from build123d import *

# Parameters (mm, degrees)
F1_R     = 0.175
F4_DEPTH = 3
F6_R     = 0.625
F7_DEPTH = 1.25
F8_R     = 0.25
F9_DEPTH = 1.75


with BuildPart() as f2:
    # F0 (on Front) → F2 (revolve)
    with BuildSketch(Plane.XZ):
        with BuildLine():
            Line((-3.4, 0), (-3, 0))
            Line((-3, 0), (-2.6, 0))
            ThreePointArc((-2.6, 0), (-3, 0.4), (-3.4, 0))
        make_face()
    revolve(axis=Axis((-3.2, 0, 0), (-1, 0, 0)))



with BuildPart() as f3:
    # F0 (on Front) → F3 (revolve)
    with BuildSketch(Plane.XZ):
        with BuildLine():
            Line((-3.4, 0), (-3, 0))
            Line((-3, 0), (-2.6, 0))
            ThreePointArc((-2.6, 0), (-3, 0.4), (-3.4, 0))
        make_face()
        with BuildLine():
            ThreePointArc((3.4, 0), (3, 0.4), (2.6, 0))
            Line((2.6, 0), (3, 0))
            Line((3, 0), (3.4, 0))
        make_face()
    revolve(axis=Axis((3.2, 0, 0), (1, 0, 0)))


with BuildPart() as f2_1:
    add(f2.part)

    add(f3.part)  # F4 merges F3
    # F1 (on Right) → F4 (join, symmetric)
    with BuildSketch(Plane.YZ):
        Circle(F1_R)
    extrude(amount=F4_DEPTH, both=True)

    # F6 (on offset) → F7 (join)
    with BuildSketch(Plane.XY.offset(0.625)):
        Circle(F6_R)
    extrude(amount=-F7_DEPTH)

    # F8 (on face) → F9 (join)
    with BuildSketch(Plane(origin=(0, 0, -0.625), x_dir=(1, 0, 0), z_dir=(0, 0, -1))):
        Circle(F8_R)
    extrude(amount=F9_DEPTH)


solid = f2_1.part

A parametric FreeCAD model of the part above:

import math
import FreeCAD as App
import Part
import Sketcher

V = App.Vector

doc = App.newDocument("Part")
params = doc.addObject("Spreadsheet::Sheet", "Params")
for row, (alias, value) in enumerate([
    ("sketch1_radius", "0.4 mm"),
    ("revolution_angle", "360 deg"),
    ("sketch2_radius", "0.4 mm"),
    ("revolution2_angle", "360 deg"),
    ("sketch3_diameter", "0.35 mm"),
    ("pad1_length", "6 mm"),
    ("sketch4_diameter", "1.25 mm"),
    ("pad2_length", "1.25 mm"),
    ("sketch5_diameter", "0.5 mm"),
    ("pad3_length", "1.75 mm"),
], start=1):
    params.set(f"A{row}", alias)
    params.set(f"B{row}", "=" + value)
    params.setAlias(f"B{row}", alias)

body = doc.addObject("PartDesign::Body", "Body")

# Sketch on XZ plane
sketch1 = body.newObject("Sketcher::SketchObject", "Sketch")
sketch1.AttachmentSupport = (doc.getObject("XZ_Plane"), [""])
sketch1.MapMode = "FlatFace"
sketch1.addGeometry(Part.LineSegment(V(-3.4, 0, 0), V(-2.6, 0, 0)), False)
sketch1.addGeometry(Part.ArcOfCircle(Part.Circle(V(-3, 0, 0), V(0, 0, 1), 0.4), math.radians(0), math.radians(180)), False)
sketch1.addConstraint(Sketcher.Constraint("Coincident", 0, 1, 1, 2))
sketch1.addConstraint(Sketcher.Constraint("Coincident", 1, 1, 0, 2))
sketch1.addConstraint(Sketcher.Constraint("Horizontal", 0))
sketch1.addConstraint(Sketcher.Constraint("PointOnObject", 1, 3, -1))
sketch1.addConstraint(Sketcher.Constraint("PointOnObject", 0, 1, -1))
sketch1.addConstraint(Sketcher.Constraint("Radius", 1, 0.4))
sketch1.addConstraint(Sketcher.Constraint("DistanceX", 1, 3, -1, 1, 3.0))
sketch1.setExpression("Constraints[5]", "Params.sketch1_radius")
revolution = body.newObject("PartDesign::Revolution", "Revolution")
revolution.Profile = sketch1
revolution.ReferenceAxis = (sketch1, ["H_Axis"])
revolution.setExpression("Angle", "Params.revolution_angle")
body2 = doc.addObject("PartDesign::Body", "Body001")
body2.AllowCompound = True

# Sketch on XZ plane
sketch2 = body2.newObject("Sketcher::SketchObject", "Sketch001")
sketch2.AttachmentSupport = (doc.getObject("XZ_Plane001"), [""])
sketch2.MapMode = "FlatFace"
sketch2.addGeometry(Part.LineSegment(V(-3.4, 0, 0), V(-2.6, 0, 0)), False)
sketch2.addGeometry(Part.ArcOfCircle(Part.Circle(V(-3, 0, 0), V(0, 0, 1), 0.4), math.radians(0), math.radians(180)), False)
sketch2.addGeometry(Part.ArcOfCircle(Part.Circle(V(3, 0, 0), V(0, 0, 1), 0.4), math.radians(0), math.radians(180)), False)
sketch2.addGeometry(Part.LineSegment(V(2.6, 0, 0), V(3.4, 0, 0)), False)
sketch2.addConstraint(Sketcher.Constraint("Coincident", 0, 1, 1, 2))
sketch2.addConstraint(Sketcher.Constraint("Coincident", 1, 1, 0, 2))
sketch2.addConstraint(Sketcher.Constraint("Coincident", 2, 1, 3, 2))
sketch2.addConstraint(Sketcher.Constraint("Coincident", 3, 1, 2, 2))
sketch2.addConstraint(Sketcher.Constraint("Horizontal", 0))
sketch2.addConstraint(Sketcher.Constraint("Horizontal", 3))
sketch2.addConstraint(Sketcher.Constraint("Equal", 1, 2))
sketch2.addConstraint(Sketcher.Constraint("Symmetric", 1, 3, 2, 3, -1, 1))
sketch2.addConstraint(Sketcher.Constraint("PointOnObject", 1, 3, -1))
sketch2.addConstraint(Sketcher.Constraint("PointOnObject", 0, 1, -1))
sketch2.addConstraint(Sketcher.Constraint("PointOnObject", 2, 1, -1))
sketch2.addConstraint(Sketcher.Constraint("Radius", 1, 0.4))
sketch2.addConstraint(Sketcher.Constraint("DistanceX", 1, 3, -1, 1, 3.0))
sketch2.setExpression("Constraints[11]", "Params.sketch2_radius")
revolution2 = body2.newObject("PartDesign::Revolution", "Revolution001")
revolution2.Profile = sketch2
revolution2.ReferenceAxis = (sketch2, ["H_Axis"])
revolution2.setExpression("Angle", "Params.revolution2_angle")
body.AllowCompound = True
doc.recompute()

boolean = body.newObject("PartDesign::Boolean", "Boolean")
boolean.Type = "Fuse"
boolean.addObjects([body2])

# Sketch on YZ plane
sketch3 = body.newObject("Sketcher::SketchObject", "Sketch002")
sketch3.AttachmentSupport = (doc.getObject("YZ_Plane"), [""])
sketch3.MapMode = "FlatFace"
sketch3.addGeometry(Part.Circle(V(0, 0, 0), V(0, 0, 1), 0.17), False)
sketch3.addConstraint(Sketcher.Constraint("Coincident", 0, 3, -1, 1))
sketch3.addConstraint(Sketcher.Constraint("Diameter", 0, 0.35))
sketch3.setExpression("Constraints[1]", "Params.sketch3_diameter")
pad1 = body.newObject("PartDesign::Pad", "Pad")
pad1.Profile = sketch3
pad1.setExpression("Length", "Params.pad1_length")
pad1.Midplane = True

# Sketch on XY plane
sketch4 = body.newObject("Sketcher::SketchObject", "Sketch003")
sketch4.AttachmentSupport = (doc.getObject("XY_Plane"), [""])
sketch4.MapMode = "FlatFace"
sketch4.AttachmentOffset = App.Placement(V(0, 0, 0.625), App.Rotation())
sketch4.addGeometry(Part.Circle(V(0, 0, 0), V(0, 0, 1), 0.6), False)
sketch4.addConstraint(Sketcher.Constraint("Coincident", 0, 3, -1, 1))
sketch4.addConstraint(Sketcher.Constraint("Diameter", 0, 1.25))
sketch4.setExpression("Constraints[1]", "Params.sketch4_diameter")
pad2 = body.newObject("PartDesign::Pad", "Pad001")
pad2.Profile = sketch4
pad2.setExpression("Length", "Params.pad2_length")
pad2.Reversed = True

# Sketch on XY plane
sketch5 = body.newObject("Sketcher::SketchObject", "Sketch004")
sketch5.AttachmentSupport = (doc.getObject("XY_Plane"), [""])
sketch5.MapMode = "FlatFace"
sketch5.AttachmentOffset = App.Placement(V(0, 0, -0.625), App.Rotation())
sketch5.addGeometry(Part.Circle(V(0, 0, 0), V(0, 0, 1), 0.25), False)
sketch5.addConstraint(Sketcher.Constraint("Coincident", 0, 3, -1, 1))
sketch5.addConstraint(Sketcher.Constraint("Diameter", 0, 0.5))
sketch5.setExpression("Constraints[1]", "Params.sketch5_diameter")
pad3 = body.newObject("PartDesign::Pad", "Pad002")
pad3.Profile = sketch5
pad3.setExpression("Length", "Params.pad3_length")
pad3.Reversed = True

doc.recompute()
